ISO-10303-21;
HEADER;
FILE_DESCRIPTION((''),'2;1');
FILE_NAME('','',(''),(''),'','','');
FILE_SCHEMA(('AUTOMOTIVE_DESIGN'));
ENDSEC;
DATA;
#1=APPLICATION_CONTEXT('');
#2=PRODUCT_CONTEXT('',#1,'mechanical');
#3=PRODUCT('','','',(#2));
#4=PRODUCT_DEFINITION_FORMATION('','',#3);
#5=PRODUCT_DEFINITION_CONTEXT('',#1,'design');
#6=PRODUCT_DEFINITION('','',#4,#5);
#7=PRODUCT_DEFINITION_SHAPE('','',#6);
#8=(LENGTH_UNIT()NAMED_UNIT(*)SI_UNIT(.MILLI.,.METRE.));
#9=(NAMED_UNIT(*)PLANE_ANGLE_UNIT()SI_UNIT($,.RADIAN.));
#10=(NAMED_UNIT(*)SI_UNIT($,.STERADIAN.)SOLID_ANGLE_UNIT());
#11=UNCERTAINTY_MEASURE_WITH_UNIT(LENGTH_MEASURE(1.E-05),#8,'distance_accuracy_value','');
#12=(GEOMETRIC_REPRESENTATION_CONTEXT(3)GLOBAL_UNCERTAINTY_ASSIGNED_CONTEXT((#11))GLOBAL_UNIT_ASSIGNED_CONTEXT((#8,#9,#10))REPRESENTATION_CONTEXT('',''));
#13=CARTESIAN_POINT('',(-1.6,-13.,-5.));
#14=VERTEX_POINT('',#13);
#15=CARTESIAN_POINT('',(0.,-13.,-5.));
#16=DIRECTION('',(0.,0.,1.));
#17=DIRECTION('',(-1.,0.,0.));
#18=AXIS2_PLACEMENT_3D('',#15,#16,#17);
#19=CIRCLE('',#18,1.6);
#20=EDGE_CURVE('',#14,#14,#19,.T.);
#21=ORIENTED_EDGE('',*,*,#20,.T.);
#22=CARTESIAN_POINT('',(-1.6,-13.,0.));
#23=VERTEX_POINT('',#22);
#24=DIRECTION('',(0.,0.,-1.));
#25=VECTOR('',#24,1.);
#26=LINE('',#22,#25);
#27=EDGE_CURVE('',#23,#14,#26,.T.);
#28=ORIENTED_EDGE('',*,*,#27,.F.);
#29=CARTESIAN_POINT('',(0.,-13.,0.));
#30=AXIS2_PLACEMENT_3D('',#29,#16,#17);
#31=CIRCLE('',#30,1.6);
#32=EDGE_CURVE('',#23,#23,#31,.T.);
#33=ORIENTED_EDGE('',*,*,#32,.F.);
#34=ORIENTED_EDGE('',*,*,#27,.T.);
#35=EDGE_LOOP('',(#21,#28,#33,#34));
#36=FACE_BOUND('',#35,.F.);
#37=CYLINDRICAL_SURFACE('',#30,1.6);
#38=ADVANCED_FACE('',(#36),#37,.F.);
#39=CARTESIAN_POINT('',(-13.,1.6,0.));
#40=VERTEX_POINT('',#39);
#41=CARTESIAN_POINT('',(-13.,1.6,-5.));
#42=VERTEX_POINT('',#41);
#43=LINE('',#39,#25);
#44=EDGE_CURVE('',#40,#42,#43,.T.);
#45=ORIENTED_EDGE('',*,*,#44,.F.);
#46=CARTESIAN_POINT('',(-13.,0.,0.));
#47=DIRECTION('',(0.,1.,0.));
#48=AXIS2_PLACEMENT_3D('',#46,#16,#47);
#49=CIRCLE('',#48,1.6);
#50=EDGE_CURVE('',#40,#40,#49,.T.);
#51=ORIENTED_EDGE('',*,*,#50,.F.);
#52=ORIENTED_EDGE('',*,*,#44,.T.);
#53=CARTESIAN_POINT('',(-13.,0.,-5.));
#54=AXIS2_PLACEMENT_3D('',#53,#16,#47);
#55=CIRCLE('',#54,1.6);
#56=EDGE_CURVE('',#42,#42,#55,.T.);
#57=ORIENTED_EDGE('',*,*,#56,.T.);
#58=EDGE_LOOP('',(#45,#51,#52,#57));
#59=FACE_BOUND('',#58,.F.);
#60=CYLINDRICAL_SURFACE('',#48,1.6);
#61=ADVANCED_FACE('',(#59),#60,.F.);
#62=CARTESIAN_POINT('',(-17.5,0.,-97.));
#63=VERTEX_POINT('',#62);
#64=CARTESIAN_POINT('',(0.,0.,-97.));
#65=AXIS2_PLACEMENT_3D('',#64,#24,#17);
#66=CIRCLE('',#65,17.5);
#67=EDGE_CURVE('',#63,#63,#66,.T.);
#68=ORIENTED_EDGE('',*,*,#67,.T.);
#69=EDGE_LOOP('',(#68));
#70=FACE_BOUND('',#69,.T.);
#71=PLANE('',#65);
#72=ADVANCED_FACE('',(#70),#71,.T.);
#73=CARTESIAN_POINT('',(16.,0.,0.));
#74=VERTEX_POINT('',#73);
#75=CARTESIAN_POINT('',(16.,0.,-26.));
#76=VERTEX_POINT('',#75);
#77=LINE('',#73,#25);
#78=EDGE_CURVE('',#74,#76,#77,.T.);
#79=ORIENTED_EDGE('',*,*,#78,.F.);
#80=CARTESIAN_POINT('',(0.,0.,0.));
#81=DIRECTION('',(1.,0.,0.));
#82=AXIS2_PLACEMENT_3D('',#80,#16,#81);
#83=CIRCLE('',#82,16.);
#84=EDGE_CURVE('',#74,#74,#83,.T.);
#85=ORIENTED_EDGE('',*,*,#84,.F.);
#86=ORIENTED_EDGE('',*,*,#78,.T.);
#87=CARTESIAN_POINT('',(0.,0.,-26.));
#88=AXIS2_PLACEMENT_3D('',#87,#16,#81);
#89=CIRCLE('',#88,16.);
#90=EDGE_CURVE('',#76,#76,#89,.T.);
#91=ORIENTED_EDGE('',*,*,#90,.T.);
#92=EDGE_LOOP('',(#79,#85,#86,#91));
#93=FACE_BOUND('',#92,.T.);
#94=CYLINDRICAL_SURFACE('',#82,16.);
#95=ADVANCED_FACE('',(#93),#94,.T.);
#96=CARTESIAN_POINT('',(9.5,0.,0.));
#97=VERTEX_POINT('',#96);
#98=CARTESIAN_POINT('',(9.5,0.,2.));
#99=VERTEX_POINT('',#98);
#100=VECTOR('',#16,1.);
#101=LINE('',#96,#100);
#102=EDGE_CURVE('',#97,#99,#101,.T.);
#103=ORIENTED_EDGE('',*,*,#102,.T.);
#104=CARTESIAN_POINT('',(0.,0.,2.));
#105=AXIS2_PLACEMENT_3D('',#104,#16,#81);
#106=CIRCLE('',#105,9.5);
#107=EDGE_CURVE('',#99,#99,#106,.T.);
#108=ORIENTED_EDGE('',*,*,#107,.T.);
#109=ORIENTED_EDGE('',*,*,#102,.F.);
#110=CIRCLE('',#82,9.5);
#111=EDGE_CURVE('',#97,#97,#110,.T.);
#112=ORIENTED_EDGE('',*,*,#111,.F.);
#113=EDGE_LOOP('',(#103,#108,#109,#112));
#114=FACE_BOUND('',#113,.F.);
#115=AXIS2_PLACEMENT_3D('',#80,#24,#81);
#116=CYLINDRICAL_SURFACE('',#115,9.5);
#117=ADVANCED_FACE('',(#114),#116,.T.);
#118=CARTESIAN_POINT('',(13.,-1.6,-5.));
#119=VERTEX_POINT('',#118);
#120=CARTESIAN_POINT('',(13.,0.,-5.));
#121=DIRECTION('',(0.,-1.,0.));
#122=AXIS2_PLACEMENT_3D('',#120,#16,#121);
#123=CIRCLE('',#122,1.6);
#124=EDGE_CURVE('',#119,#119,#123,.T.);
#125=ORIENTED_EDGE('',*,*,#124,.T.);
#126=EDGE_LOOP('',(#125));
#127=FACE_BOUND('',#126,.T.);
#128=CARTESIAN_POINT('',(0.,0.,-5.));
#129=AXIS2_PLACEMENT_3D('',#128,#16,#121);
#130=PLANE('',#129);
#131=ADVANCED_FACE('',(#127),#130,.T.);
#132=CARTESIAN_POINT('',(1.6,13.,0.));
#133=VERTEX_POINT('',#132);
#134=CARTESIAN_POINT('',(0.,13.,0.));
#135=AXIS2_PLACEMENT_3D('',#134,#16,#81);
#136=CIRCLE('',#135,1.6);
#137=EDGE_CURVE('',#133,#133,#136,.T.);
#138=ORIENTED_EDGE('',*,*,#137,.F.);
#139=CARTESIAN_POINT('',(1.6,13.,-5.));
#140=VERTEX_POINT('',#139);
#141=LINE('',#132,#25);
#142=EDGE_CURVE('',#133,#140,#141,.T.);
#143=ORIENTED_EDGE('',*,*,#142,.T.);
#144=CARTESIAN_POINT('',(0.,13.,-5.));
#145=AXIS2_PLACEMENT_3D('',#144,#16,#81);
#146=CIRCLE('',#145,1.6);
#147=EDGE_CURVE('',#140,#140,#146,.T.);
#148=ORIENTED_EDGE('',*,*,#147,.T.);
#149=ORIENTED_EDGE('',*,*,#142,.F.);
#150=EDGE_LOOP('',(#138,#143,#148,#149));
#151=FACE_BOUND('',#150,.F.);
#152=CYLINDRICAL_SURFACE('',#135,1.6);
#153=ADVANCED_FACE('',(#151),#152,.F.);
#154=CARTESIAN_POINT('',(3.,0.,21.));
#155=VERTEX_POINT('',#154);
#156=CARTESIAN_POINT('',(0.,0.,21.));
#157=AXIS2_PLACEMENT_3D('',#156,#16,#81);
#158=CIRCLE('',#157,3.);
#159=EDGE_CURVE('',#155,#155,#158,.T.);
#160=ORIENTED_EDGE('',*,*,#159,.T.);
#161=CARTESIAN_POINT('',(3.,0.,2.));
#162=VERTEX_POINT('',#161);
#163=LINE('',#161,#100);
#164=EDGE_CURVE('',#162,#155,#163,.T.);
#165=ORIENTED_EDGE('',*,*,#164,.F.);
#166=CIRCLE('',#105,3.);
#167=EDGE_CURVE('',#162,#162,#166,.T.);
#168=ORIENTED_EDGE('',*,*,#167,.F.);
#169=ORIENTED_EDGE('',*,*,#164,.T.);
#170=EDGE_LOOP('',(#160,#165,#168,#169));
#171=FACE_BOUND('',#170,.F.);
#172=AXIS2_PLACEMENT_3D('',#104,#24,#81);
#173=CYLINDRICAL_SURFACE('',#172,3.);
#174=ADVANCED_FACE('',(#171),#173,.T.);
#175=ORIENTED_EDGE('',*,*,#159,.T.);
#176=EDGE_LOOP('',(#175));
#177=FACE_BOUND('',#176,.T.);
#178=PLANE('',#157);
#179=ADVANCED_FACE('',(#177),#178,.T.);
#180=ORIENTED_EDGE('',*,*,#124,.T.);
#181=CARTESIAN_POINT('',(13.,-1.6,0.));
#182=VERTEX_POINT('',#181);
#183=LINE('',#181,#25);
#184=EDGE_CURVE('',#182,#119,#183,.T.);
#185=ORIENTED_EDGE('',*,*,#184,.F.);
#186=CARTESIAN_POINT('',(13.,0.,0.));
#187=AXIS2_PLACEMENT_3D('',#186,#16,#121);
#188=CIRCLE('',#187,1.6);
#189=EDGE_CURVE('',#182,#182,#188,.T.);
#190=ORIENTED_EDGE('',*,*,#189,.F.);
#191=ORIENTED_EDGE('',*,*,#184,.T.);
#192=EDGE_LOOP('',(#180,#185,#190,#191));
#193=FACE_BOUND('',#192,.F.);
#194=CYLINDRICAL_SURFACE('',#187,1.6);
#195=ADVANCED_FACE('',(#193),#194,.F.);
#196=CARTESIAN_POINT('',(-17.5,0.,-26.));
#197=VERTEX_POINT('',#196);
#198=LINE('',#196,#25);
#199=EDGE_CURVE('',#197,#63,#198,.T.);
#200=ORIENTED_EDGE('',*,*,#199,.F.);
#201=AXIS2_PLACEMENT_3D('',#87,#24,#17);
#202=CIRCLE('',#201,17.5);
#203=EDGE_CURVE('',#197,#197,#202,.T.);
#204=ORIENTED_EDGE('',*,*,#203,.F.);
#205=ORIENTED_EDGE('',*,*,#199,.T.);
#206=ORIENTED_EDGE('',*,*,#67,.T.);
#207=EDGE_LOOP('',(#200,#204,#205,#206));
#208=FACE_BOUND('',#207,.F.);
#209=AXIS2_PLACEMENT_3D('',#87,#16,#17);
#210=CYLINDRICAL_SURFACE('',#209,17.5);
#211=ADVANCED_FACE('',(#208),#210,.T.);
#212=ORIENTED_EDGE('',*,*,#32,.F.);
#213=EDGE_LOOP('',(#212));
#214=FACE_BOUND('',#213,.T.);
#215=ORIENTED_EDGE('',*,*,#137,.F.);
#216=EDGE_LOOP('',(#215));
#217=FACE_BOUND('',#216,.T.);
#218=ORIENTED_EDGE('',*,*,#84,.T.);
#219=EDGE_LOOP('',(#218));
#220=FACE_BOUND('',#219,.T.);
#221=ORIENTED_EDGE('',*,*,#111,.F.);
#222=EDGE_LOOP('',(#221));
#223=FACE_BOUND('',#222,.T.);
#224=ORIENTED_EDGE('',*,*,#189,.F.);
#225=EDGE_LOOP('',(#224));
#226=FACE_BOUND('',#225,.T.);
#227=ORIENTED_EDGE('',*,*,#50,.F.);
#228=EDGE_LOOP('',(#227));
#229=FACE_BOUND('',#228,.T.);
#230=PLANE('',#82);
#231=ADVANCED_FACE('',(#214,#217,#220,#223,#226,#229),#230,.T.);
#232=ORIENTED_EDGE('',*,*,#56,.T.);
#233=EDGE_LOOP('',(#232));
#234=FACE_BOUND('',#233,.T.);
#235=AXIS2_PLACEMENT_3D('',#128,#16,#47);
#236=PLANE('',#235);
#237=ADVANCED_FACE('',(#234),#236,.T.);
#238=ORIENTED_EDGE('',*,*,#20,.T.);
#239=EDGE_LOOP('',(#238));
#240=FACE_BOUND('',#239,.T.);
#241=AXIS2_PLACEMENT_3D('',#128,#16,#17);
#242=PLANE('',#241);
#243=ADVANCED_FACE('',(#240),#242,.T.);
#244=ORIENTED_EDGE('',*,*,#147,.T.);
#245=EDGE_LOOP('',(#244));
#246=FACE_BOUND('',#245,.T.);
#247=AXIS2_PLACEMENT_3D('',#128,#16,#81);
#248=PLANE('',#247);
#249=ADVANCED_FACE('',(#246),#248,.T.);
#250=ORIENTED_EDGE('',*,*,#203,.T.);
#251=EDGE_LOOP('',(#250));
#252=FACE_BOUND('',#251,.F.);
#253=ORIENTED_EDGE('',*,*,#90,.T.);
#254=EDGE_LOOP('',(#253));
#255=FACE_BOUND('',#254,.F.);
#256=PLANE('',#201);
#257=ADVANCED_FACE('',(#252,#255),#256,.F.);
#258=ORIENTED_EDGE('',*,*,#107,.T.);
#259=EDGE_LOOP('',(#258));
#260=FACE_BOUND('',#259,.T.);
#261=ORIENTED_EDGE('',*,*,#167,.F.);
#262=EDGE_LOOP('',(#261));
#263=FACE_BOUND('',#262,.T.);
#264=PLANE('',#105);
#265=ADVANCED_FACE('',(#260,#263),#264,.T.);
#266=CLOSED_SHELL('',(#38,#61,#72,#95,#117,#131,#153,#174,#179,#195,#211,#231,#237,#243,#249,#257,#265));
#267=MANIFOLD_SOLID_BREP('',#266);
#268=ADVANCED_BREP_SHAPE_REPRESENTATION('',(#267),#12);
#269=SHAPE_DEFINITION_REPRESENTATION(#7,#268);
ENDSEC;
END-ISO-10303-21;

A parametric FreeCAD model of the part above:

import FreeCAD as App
import Part
import Sketcher

doc = App.newDocument("Part")
body = doc.addObject("PartDesign::Body", "Body")

sketch1 = doc.addObject("Sketcher::SketchObject", "Sketch")
body.addObject(sketch1)
sketch1.AttachmentSupport = (doc.XY_Plane, [""])
sketch1.MapMode = "FlatFace"
sketch1.addGeometry(Part.Circle(App.Vector(0, 0, 0), App.Vector(0, 0, 1), 16), False)
sketch1.addConstraint([
    Sketcher.Constraint("Coincident", 0, 3, -1, 1),
    Sketcher.Constraint("Diameter", 0, 32.0),
])
pad1 = doc.addObject("PartDesign::Pad", "Pad")
body.addObject(pad1)
pad1.Profile = sketch1
pad1.Length = 26
pad1.Reversed = True

sketch2 = doc.addObject("Sketcher::SketchObject", "Sketch001")
body.addObject(sketch2)
sketch2.AttachmentSupport = (doc.XY_Plane, [""])
sketch2.MapMode = "FlatFace"
sketch2.AttachmentOffset = App.Placement(App.Vector(0, 0, -26), App.Rotation())
sketch2.addGeometry(Part.Circle(App.Vector(0, 0, 0), App.Vector(0, 0, 1), 18), False)
sketch2.addConstraint([
    Sketcher.Constraint("Coincident", 0, 3, -1, 1),
    Sketcher.Constraint("Diameter", 0, 35.0),
])
pad2 = doc.addObject("PartDesign::Pad", "Pad001")
body.addObject(pad2)
pad2.Profile = sketch2
pad2.Length = 71
pad2.Reversed = True

sketch3 = doc.addObject("Sketcher::SketchObject", "Sketch002")
body.addObject(sketch3)
sketch3.AttachmentSupport = (doc.XY_Plane, [""])
sketch3.MapMode = "FlatFace"
sketch3.addGeometry(Part.Circle(App.Vector(0, 13, 0), App.Vector(0, 0, 1), 1.6), False)
sketch3.addConstraint([
    Sketcher.Constraint("PointOnObject", 0, 3, -2),
    Sketcher.Constraint("Diameter", 0, 3.2),
    Sketcher.Constraint("DistanceY", -1, 1, 0, 3, 13.0),
])
pocket1 = doc.addObject("PartDesign::Pocket", "Pocket")
body.addObject(pocket1)
pocket1.Profile = sketch3
pocket1.Length = 5
doc.recompute()

polarpattern = doc.addObject("PartDesign::PolarPattern", "PolarPattern")
body.addObject(polarpattern)
polarpattern.Originals = [pocket1]
polarpattern.Axis = (doc.Z_Axis, [""])
polarpattern.Angle = 360
polarpattern.Occurrences = 4
body.Tip = polarpattern

sketch4 = doc.addObject("Sketcher::SketchObject", "Sketch003")
body.addObject(sketch4)
sketch4.AttachmentSupport = (doc.XY_Plane, [""])
sketch4.MapMode = "FlatFace"
sketch4.addGeometry(Part.Circle(App.Vector(0, 0, 0), App.Vector(0, 0, 1), 10), False)
sketch4.addConstraint([
    Sketcher.Constraint("Coincident", 0, 3, -1, 1),
    Sketcher.Constraint("Diameter", 0, 19.0),
])
pad3 = doc.addObject("PartDesign::Pad", "Pad002")
body.addObject(pad3)
pad3.Profile = sketch4
pad3.Length = 2

sketch5 = doc.addObject("Sketcher::SketchObject", "Sketch004")
body.addObject(sketch5)
sketch5.AttachmentSupport = (doc.XY_Plane, [""])
sketch5.MapMode = "FlatFace"
sketch5.AttachmentOffset = App.Placement(App.Vector(0, 0, 2), App.Rotation())
sketch5.addGeometry(Part.Circle(App.Vector(0, 0, 0), App.Vector(0, 0, 1), 3), False)
sketch5.addConstraint([
    Sketcher.Constraint("Coincident", 0, 3, -1, 1),
    Sketcher.Constraint("Diameter", 0, 6.0),
])
pad4 = doc.addObject("PartDesign::Pad", "Pad003")
body.addObject(pad4)
pad4.Profile = sketch5
pad4.Length = 19

doc.recompute()
